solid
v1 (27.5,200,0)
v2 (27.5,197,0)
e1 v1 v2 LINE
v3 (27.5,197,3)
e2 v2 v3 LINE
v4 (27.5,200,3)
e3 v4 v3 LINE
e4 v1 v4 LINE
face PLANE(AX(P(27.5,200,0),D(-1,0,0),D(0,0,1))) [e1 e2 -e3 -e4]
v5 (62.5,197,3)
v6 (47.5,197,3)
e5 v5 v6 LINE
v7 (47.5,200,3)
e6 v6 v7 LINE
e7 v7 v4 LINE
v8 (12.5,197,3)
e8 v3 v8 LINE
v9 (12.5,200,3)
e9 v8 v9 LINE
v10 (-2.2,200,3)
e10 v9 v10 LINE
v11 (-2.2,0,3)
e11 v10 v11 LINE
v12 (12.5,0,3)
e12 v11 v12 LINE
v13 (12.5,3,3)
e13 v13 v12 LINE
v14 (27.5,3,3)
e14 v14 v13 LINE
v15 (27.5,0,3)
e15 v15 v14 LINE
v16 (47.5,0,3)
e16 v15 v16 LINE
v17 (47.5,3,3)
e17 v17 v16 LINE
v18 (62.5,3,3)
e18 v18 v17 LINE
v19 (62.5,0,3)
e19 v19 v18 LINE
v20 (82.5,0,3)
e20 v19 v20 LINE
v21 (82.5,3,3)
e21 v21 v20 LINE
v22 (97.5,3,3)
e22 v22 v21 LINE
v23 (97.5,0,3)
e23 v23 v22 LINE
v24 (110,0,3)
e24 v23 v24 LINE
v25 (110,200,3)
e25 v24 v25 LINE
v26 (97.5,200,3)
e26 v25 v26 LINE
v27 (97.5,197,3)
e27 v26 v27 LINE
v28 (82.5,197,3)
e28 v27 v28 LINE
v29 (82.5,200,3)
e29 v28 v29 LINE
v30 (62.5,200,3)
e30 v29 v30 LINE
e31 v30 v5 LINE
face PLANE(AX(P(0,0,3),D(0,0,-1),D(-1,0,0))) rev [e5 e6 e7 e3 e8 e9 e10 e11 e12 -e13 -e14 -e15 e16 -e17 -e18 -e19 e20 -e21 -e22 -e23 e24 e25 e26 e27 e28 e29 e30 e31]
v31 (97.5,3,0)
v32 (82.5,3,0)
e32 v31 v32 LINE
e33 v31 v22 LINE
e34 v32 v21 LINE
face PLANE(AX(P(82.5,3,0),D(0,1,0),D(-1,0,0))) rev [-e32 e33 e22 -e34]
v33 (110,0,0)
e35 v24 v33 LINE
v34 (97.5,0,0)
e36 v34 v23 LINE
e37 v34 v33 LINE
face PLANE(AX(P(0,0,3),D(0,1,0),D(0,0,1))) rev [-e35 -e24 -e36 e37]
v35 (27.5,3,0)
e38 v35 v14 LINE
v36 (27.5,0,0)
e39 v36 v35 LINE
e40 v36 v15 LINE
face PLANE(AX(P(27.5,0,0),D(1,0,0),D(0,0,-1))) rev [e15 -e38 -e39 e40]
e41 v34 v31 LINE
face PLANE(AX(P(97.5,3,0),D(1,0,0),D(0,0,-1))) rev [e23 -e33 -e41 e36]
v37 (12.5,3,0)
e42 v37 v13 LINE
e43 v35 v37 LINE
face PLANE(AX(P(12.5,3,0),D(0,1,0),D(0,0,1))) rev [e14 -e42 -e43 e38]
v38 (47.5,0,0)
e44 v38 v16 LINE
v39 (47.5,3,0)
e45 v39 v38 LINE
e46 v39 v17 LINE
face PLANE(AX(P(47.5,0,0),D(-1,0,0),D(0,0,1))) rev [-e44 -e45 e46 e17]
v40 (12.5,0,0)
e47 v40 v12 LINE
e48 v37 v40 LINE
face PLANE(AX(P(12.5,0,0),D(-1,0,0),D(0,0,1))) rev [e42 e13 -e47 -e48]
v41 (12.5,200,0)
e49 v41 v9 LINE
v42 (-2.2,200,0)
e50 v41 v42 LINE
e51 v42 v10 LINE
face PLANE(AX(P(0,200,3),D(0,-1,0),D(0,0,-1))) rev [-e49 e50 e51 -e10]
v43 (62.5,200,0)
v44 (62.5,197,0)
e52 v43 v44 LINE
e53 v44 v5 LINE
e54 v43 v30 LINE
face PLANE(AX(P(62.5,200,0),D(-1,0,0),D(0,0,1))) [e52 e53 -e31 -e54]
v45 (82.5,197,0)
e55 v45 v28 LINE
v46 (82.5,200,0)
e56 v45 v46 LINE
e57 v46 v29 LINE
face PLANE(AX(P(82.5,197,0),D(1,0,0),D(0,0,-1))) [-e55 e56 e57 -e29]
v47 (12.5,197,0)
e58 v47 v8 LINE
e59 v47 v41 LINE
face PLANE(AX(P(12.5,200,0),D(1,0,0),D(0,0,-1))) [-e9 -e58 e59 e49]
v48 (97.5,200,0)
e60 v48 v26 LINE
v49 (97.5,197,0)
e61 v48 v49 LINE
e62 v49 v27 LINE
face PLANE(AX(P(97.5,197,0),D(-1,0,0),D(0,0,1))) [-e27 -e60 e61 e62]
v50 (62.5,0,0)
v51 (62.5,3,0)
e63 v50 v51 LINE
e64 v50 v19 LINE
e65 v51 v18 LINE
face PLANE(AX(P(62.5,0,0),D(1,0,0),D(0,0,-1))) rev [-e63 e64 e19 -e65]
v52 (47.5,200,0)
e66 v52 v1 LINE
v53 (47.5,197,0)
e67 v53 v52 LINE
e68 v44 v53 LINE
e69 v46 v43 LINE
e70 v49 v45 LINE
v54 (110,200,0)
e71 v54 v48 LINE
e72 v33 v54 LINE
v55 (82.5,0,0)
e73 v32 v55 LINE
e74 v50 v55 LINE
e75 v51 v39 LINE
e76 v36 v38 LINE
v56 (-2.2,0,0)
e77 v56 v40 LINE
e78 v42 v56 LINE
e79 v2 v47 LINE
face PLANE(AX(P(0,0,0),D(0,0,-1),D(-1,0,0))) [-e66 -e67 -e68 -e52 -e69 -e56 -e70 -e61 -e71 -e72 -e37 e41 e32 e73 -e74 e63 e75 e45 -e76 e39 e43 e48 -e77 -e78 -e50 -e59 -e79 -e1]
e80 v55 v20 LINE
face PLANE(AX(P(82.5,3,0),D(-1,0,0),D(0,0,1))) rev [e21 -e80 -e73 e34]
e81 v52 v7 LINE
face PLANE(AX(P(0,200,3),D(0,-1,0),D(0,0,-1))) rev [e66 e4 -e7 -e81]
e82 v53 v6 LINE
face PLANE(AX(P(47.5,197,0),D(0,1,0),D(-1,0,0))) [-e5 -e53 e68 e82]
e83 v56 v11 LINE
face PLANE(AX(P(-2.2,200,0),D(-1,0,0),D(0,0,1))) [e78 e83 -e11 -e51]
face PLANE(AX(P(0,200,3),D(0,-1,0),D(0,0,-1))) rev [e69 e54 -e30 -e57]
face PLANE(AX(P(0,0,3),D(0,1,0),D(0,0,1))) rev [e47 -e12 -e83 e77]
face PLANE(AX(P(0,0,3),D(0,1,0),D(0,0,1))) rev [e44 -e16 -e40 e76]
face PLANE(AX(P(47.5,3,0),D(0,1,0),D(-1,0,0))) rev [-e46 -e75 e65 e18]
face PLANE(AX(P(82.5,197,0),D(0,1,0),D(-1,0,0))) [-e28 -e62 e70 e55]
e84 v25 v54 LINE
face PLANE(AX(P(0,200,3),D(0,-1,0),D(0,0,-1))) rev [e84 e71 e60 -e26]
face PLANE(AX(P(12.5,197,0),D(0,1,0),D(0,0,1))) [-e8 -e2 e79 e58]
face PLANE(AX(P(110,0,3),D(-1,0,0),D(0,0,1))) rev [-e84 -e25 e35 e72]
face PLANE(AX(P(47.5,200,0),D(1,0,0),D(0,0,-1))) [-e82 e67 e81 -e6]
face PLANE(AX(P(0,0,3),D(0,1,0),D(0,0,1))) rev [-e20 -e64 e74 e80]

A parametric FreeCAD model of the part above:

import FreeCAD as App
import Part
import Sketcher

V = App.Vector

doc = App.newDocument("Part")
params = doc.addObject("Spreadsheet::Sheet", "Params")
for row, (alias, value) in enumerate([
    ("sketch1_width", "110 mm"),
    ("sketch1_height", "200 mm"),
    ("pad1_length", "3 mm"),
    ("sketch2_width", "15 mm"),
    ("sketch2_height", "3 mm"),
    ("sketch3_height", "200 mm"),
    ("sketch3_width", "2.2 mm"),
    ("pad2_length", "3 mm"),
], start=1):
    params.set(f"A{row}", alias)
    params.set(f"B{row}", "=" + value)
    params.setAlias(f"B{row}", alias)

body = doc.addObject("PartDesign::Body", "Body")

sketch1 = body.newObject("Sketcher::SketchObject", "Sketch")
sketch1.AttachmentSupport = (doc.getObject("XY_Plane"), [""])
sketch1.MapMode = "FlatFace"
sketch1.addGeometry(Part.LineSegment(V(0, 200, 0), V(0, 0, 0)), False)
sketch1.addGeometry(Part.LineSegment(V(0, 0, 0), V(110, 0, 0)), False)
sketch1.addGeometry(Part.LineSegment(V(110, 0, 0), V(110, 200, 0)), False)
sketch1.addGeometry(Part.LineSegment(V(110, 200, 0), V(0, 200, 0)), False)
sketch1.addConstraint(Sketcher.Constraint("Coincident", 0, 2, 1, 1))
sketch1.addConstraint(Sketcher.Constraint("Coincident", 1, 2, 2, 1))
sketch1.addConstraint(Sketcher.Constraint("Coincident", 2, 2, 3, 1))
sketch1.addConstraint(Sketcher.Constraint("Coincident", 3, 2, 0, 1))
sketch1.addConstraint(Sketcher.Constraint("Vertical", 0))
sketch1.addConstraint(Sketcher.Constraint("Horizontal", 1))
sketch1.addConstraint(Sketcher.Constraint("Vertical", 2))
sketch1.addConstraint(Sketcher.Constraint("Horizontal", 3))
sketch1.addConstraint(Sketcher.Constraint("Coincident", 0, 2, -1, 1))
sketch1.addConstraint(Sketcher.Constraint("DistanceX", 1, 1, 1, 2, 110.0))
sketch1.addConstraint(Sketcher.Constraint("DistanceY", 0, 2, 0, 1, 200.0))
sketch1.setExpression("Constraints[9]", "Params.sketch1_width")
sketch1.setExpression("Constraints[10]", "Params.sketch1_height")
pad1 = body.newObject("PartDesign::Pad", "Pad")
pad1.Profile = sketch1
pad1.setExpression("Length", "Params.pad1_length")

sketch2 = body.newObject("Sketcher::SketchObject", "Sketch001")
sketch2.AttachmentSupport = (doc.getObject("XY_Plane"), [""])
sketch2.MapMode = "FlatFace"
sketch2.AttachmentOffset = App.Placement(V(0, 0, 3), App.Rotation())
sketch2.addGeometry(Part.LineSegment(V(47.5, 3, 0), V(47.5, 0, 0)), False)
sketch2.addGeometry(Part.LineSegment(V(47.5, 0, 0), V(62.5, 0, 0)), False)
sketch2.addGeometry(Part.LineSegment(V(62.5, 0, 0), V(62.5, 3, 0)), False)
sketch2.addGeometry(Part.LineSegment(V(62.5, 3, 0), V(47.5, 3, 0)), False)
sketch2.addGeometry(Part.LineSegment(V(12.5, 3, 0), V(12.5, 0, 0)), False)
sketch2.addGeometry(Part.LineSegment(V(12.5, 0, 0), V(27.5, 0, 0)), False)
sketch2.addGeometry(Part.LineSegment(V(27.5, 0, 0), V(27.5, 3, 0)), False)
sketch2.addGeometry(Part.LineSegment(V(27.5, 3, 0), V(12.5, 3, 0)), False)
sketch2.addGeometry(Part.LineSegment(V(82.5, 3, 0), V(82.5, 0, 0)), False)
sketch2.addGeometry(Part.LineSegment(V(82.5, 0, 0), V(97.5, 0, 0)), False)
sketch2.addGeometry(Part.LineSegment(V(97.5, 0, 0), V(97.5, 3, 0)), False)
sketch2.addGeometry(Part.LineSegment(V(97.5, 3, 0), V(82.5, 3, 0)), False)
sketch2.addConstraint(Sketcher.Constraint("Coincident", 0, 2, 1, 1))
sketch2.addConstraint(Sketcher.Constraint("Coincident", 1, 2, 2, 1))
sketch2.addConstraint(Sketcher.Constraint("Coincident", 2, 2, 3, 1))
sketch2.addConstraint(Sketcher.Constraint("Coincident", 3, 2, 0, 1))
sketch2.addConstraint(Sketcher.Constraint("Coincident", 4, 2, 5, 1))
sketch2.addConstraint(Sketcher.Constraint("Coincident", 5, 2, 6, 1))
sketch2.addConstraint(Sketcher.Constraint("Coincident", 6, 2, 7, 1))
sketch2.addConstraint(Sketcher.Constraint("Coincident", 7, 2, 4, 1))
sketch2.addConstraint(Sketcher.Constraint("Coincident", 8, 2, 9, 1))
sketch2.addConstraint(Sketcher.Constraint("Coincident", 9, 2, 10, 1))
sketch2.addConstraint(Sketcher.Constraint("Coincident", 10, 2, 11, 1))
sketch2.addConstraint(Sketcher.Constraint("Coincident", 11, 2, 8, 1))
sketch2.addConstraint(Sketcher.Constraint("Vertical", 0))
sketch2.addConstraint(Sketcher.Constraint("Horizontal", 1))
sketch2.addConstraint(Sketcher.Constraint("Vertical", 2))
sketch2.addConstraint(Sketcher.Constraint("Horizontal", 3))
sketch2.addConstraint(Sketcher.Constraint("Vertical", 4))
sketch2.addConstraint(Sketcher.Constraint("Horizontal", 5))
sketch2.addConstraint(Sketcher.Constraint("Vertical", 6))
sketch2.addConstraint(Sketcher.Constraint("Horizontal", 7))
sketch2.addConstraint(Sketcher.Constraint("Vertical", 8))
sketch2.addConstraint(Sketcher.Constraint("Horizontal", 9))
sketch2.addConstraint(Sketcher.Constraint("Vertical", 10))
sketch2.addConstraint(Sketcher.Constraint("Horizontal", 11))
sketch2.addConstraint(Sketcher.Constraint("PointOnObject", 0, 2, -1))
sketch2.addConstraint(Sketcher.Constraint("PointOnObject", 4, 2, -1))
sketch2.addConstraint(Sketcher.Constraint("PointOnObject", 8, 2, -1))
sketch2.addConstraint(Sketcher.Constraint("Horizontal", 3, 2, 6, 2))
sketch2.addConstraint(Sketcher.Constraint("Horizontal", 7, 2, 10, 2))
sketch2.addConstraint(Sketcher.Constraint("Equal", 3, 5))
sketch2.addConstraint(Sketcher.Constraint("Equal", 7, 9))
sketch2.addConstraint(Sketcher.Constraint("DistanceX", 1, 1, 1, 2, 15.0))
sketch2.addConstraint(Sketcher.Constraint("DistanceY", 0, 2, 0, 1, 3.0))
sketch2.addConstraint(Sketcher.Constraint("DistanceX", 4, 2, 0, 2, 35.0))
sketch2.addConstraint(Sketcher.Constraint("DistanceX", 1, 2, 8, 2, 20.0))
sketch2.addConstraint(Sketcher.Constraint("DistanceX", -1, 1, 0, 2, 47.5))
sketch2.setExpression("Constraints[31]", "Params.sketch2_width")
sketch2.setExpression("Constraints[32]", "Params.sketch2_height")
pocket1 = body.newObject("PartDesign::Pocket", "Pocket")
pocket1.Profile = sketch2
pocket1.Type = "ThroughAll"
doc.recompute()

datumplane = body.newObject("PartDesign::Plane", "DatumPlane")
datumplane.AttachmentSupport = (doc.getObject("XZ_Plane"), [""])
datumplane.MapMode = "FlatFace"
datumplane.AttachmentOffset = App.Placement(V(0, 0, -100), App.Rotation())
mirrored = body.newObject("PartDesign::Mirrored", "Mirrored")
mirrored.Originals = [pocket1]
mirrored.MirrorPlane = (datumplane, [""])
body.Tip = mirrored

sketch3 = body.newObject("Sketcher::SketchObject", "Sketch002")
sketch3.AttachmentSupport = (doc.getObject("XY_Plane"), [""])
sketch3.MapMode = "FlatFace"
sketch3.AttachmentOffset = App.Placement(V(0, 0, 3), App.Rotation())
sketch3.addGeometry(Part.LineSegment(V(-2.2, 200, 0), V(-2.2, 0, 0)), False)
sketch3.addGeometry(Part.LineSegment(V(-2.2, 0, 0), V(0, 0, 0)), False)
sketch3.addGeometry(Part.LineSegment(V(0, 0, 0), V(0, 200, 0)), False)
sketch3.addGeometry(Part.LineSegment(V(0, 200, 0), V(-2.2, 200, 0)), False)
sketch3.addConstraint(Sketcher.Constraint("Coincident", 0, 2, 1, 1))
sketch3.addConstraint(Sketcher.Constraint("Coincident", 1, 2, 2, 1))
sketch3.addConstraint(Sketcher.Constraint("Coincident", 2, 2, 3, 1))
sketch3.addConstraint(Sketcher.Constraint("Coincident", 3, 2, 0, 1))
sketch3.addConstraint(Sketcher.Constraint("Vertical", 0))
sketch3.addConstraint(Sketcher.Constraint("Horizontal", 1))
sketch3.addConstraint(Sketcher.Constraint("Vertical", 2))
sketch3.addConstraint(Sketcher.Constraint("Horizontal", 3))
sketch3.addConstraint(Sketcher.Constraint("Coincident", 1, 2, -1, 1))
sketch3.addConstraint(Sketcher.Constraint("DistanceY", 0, 2, 0, 1, 200.0))
sketch3.addConstraint(Sketcher.Constraint("DistanceX", 1, 1, 1, 2, 2.2))
sketch3.setExpression("Constraints[9]", "Params.sketch3_height")
sketch3.setExpression("Constraints[10]", "Params.sketch3_width")
pad2 = body.newObject("PartDesign::Pad", "Pad001")
pad2.Profile = sketch3
pad2.setExpression("Length", "Params.pad2_length")
pad2.Reversed = True

doc.recompute()
